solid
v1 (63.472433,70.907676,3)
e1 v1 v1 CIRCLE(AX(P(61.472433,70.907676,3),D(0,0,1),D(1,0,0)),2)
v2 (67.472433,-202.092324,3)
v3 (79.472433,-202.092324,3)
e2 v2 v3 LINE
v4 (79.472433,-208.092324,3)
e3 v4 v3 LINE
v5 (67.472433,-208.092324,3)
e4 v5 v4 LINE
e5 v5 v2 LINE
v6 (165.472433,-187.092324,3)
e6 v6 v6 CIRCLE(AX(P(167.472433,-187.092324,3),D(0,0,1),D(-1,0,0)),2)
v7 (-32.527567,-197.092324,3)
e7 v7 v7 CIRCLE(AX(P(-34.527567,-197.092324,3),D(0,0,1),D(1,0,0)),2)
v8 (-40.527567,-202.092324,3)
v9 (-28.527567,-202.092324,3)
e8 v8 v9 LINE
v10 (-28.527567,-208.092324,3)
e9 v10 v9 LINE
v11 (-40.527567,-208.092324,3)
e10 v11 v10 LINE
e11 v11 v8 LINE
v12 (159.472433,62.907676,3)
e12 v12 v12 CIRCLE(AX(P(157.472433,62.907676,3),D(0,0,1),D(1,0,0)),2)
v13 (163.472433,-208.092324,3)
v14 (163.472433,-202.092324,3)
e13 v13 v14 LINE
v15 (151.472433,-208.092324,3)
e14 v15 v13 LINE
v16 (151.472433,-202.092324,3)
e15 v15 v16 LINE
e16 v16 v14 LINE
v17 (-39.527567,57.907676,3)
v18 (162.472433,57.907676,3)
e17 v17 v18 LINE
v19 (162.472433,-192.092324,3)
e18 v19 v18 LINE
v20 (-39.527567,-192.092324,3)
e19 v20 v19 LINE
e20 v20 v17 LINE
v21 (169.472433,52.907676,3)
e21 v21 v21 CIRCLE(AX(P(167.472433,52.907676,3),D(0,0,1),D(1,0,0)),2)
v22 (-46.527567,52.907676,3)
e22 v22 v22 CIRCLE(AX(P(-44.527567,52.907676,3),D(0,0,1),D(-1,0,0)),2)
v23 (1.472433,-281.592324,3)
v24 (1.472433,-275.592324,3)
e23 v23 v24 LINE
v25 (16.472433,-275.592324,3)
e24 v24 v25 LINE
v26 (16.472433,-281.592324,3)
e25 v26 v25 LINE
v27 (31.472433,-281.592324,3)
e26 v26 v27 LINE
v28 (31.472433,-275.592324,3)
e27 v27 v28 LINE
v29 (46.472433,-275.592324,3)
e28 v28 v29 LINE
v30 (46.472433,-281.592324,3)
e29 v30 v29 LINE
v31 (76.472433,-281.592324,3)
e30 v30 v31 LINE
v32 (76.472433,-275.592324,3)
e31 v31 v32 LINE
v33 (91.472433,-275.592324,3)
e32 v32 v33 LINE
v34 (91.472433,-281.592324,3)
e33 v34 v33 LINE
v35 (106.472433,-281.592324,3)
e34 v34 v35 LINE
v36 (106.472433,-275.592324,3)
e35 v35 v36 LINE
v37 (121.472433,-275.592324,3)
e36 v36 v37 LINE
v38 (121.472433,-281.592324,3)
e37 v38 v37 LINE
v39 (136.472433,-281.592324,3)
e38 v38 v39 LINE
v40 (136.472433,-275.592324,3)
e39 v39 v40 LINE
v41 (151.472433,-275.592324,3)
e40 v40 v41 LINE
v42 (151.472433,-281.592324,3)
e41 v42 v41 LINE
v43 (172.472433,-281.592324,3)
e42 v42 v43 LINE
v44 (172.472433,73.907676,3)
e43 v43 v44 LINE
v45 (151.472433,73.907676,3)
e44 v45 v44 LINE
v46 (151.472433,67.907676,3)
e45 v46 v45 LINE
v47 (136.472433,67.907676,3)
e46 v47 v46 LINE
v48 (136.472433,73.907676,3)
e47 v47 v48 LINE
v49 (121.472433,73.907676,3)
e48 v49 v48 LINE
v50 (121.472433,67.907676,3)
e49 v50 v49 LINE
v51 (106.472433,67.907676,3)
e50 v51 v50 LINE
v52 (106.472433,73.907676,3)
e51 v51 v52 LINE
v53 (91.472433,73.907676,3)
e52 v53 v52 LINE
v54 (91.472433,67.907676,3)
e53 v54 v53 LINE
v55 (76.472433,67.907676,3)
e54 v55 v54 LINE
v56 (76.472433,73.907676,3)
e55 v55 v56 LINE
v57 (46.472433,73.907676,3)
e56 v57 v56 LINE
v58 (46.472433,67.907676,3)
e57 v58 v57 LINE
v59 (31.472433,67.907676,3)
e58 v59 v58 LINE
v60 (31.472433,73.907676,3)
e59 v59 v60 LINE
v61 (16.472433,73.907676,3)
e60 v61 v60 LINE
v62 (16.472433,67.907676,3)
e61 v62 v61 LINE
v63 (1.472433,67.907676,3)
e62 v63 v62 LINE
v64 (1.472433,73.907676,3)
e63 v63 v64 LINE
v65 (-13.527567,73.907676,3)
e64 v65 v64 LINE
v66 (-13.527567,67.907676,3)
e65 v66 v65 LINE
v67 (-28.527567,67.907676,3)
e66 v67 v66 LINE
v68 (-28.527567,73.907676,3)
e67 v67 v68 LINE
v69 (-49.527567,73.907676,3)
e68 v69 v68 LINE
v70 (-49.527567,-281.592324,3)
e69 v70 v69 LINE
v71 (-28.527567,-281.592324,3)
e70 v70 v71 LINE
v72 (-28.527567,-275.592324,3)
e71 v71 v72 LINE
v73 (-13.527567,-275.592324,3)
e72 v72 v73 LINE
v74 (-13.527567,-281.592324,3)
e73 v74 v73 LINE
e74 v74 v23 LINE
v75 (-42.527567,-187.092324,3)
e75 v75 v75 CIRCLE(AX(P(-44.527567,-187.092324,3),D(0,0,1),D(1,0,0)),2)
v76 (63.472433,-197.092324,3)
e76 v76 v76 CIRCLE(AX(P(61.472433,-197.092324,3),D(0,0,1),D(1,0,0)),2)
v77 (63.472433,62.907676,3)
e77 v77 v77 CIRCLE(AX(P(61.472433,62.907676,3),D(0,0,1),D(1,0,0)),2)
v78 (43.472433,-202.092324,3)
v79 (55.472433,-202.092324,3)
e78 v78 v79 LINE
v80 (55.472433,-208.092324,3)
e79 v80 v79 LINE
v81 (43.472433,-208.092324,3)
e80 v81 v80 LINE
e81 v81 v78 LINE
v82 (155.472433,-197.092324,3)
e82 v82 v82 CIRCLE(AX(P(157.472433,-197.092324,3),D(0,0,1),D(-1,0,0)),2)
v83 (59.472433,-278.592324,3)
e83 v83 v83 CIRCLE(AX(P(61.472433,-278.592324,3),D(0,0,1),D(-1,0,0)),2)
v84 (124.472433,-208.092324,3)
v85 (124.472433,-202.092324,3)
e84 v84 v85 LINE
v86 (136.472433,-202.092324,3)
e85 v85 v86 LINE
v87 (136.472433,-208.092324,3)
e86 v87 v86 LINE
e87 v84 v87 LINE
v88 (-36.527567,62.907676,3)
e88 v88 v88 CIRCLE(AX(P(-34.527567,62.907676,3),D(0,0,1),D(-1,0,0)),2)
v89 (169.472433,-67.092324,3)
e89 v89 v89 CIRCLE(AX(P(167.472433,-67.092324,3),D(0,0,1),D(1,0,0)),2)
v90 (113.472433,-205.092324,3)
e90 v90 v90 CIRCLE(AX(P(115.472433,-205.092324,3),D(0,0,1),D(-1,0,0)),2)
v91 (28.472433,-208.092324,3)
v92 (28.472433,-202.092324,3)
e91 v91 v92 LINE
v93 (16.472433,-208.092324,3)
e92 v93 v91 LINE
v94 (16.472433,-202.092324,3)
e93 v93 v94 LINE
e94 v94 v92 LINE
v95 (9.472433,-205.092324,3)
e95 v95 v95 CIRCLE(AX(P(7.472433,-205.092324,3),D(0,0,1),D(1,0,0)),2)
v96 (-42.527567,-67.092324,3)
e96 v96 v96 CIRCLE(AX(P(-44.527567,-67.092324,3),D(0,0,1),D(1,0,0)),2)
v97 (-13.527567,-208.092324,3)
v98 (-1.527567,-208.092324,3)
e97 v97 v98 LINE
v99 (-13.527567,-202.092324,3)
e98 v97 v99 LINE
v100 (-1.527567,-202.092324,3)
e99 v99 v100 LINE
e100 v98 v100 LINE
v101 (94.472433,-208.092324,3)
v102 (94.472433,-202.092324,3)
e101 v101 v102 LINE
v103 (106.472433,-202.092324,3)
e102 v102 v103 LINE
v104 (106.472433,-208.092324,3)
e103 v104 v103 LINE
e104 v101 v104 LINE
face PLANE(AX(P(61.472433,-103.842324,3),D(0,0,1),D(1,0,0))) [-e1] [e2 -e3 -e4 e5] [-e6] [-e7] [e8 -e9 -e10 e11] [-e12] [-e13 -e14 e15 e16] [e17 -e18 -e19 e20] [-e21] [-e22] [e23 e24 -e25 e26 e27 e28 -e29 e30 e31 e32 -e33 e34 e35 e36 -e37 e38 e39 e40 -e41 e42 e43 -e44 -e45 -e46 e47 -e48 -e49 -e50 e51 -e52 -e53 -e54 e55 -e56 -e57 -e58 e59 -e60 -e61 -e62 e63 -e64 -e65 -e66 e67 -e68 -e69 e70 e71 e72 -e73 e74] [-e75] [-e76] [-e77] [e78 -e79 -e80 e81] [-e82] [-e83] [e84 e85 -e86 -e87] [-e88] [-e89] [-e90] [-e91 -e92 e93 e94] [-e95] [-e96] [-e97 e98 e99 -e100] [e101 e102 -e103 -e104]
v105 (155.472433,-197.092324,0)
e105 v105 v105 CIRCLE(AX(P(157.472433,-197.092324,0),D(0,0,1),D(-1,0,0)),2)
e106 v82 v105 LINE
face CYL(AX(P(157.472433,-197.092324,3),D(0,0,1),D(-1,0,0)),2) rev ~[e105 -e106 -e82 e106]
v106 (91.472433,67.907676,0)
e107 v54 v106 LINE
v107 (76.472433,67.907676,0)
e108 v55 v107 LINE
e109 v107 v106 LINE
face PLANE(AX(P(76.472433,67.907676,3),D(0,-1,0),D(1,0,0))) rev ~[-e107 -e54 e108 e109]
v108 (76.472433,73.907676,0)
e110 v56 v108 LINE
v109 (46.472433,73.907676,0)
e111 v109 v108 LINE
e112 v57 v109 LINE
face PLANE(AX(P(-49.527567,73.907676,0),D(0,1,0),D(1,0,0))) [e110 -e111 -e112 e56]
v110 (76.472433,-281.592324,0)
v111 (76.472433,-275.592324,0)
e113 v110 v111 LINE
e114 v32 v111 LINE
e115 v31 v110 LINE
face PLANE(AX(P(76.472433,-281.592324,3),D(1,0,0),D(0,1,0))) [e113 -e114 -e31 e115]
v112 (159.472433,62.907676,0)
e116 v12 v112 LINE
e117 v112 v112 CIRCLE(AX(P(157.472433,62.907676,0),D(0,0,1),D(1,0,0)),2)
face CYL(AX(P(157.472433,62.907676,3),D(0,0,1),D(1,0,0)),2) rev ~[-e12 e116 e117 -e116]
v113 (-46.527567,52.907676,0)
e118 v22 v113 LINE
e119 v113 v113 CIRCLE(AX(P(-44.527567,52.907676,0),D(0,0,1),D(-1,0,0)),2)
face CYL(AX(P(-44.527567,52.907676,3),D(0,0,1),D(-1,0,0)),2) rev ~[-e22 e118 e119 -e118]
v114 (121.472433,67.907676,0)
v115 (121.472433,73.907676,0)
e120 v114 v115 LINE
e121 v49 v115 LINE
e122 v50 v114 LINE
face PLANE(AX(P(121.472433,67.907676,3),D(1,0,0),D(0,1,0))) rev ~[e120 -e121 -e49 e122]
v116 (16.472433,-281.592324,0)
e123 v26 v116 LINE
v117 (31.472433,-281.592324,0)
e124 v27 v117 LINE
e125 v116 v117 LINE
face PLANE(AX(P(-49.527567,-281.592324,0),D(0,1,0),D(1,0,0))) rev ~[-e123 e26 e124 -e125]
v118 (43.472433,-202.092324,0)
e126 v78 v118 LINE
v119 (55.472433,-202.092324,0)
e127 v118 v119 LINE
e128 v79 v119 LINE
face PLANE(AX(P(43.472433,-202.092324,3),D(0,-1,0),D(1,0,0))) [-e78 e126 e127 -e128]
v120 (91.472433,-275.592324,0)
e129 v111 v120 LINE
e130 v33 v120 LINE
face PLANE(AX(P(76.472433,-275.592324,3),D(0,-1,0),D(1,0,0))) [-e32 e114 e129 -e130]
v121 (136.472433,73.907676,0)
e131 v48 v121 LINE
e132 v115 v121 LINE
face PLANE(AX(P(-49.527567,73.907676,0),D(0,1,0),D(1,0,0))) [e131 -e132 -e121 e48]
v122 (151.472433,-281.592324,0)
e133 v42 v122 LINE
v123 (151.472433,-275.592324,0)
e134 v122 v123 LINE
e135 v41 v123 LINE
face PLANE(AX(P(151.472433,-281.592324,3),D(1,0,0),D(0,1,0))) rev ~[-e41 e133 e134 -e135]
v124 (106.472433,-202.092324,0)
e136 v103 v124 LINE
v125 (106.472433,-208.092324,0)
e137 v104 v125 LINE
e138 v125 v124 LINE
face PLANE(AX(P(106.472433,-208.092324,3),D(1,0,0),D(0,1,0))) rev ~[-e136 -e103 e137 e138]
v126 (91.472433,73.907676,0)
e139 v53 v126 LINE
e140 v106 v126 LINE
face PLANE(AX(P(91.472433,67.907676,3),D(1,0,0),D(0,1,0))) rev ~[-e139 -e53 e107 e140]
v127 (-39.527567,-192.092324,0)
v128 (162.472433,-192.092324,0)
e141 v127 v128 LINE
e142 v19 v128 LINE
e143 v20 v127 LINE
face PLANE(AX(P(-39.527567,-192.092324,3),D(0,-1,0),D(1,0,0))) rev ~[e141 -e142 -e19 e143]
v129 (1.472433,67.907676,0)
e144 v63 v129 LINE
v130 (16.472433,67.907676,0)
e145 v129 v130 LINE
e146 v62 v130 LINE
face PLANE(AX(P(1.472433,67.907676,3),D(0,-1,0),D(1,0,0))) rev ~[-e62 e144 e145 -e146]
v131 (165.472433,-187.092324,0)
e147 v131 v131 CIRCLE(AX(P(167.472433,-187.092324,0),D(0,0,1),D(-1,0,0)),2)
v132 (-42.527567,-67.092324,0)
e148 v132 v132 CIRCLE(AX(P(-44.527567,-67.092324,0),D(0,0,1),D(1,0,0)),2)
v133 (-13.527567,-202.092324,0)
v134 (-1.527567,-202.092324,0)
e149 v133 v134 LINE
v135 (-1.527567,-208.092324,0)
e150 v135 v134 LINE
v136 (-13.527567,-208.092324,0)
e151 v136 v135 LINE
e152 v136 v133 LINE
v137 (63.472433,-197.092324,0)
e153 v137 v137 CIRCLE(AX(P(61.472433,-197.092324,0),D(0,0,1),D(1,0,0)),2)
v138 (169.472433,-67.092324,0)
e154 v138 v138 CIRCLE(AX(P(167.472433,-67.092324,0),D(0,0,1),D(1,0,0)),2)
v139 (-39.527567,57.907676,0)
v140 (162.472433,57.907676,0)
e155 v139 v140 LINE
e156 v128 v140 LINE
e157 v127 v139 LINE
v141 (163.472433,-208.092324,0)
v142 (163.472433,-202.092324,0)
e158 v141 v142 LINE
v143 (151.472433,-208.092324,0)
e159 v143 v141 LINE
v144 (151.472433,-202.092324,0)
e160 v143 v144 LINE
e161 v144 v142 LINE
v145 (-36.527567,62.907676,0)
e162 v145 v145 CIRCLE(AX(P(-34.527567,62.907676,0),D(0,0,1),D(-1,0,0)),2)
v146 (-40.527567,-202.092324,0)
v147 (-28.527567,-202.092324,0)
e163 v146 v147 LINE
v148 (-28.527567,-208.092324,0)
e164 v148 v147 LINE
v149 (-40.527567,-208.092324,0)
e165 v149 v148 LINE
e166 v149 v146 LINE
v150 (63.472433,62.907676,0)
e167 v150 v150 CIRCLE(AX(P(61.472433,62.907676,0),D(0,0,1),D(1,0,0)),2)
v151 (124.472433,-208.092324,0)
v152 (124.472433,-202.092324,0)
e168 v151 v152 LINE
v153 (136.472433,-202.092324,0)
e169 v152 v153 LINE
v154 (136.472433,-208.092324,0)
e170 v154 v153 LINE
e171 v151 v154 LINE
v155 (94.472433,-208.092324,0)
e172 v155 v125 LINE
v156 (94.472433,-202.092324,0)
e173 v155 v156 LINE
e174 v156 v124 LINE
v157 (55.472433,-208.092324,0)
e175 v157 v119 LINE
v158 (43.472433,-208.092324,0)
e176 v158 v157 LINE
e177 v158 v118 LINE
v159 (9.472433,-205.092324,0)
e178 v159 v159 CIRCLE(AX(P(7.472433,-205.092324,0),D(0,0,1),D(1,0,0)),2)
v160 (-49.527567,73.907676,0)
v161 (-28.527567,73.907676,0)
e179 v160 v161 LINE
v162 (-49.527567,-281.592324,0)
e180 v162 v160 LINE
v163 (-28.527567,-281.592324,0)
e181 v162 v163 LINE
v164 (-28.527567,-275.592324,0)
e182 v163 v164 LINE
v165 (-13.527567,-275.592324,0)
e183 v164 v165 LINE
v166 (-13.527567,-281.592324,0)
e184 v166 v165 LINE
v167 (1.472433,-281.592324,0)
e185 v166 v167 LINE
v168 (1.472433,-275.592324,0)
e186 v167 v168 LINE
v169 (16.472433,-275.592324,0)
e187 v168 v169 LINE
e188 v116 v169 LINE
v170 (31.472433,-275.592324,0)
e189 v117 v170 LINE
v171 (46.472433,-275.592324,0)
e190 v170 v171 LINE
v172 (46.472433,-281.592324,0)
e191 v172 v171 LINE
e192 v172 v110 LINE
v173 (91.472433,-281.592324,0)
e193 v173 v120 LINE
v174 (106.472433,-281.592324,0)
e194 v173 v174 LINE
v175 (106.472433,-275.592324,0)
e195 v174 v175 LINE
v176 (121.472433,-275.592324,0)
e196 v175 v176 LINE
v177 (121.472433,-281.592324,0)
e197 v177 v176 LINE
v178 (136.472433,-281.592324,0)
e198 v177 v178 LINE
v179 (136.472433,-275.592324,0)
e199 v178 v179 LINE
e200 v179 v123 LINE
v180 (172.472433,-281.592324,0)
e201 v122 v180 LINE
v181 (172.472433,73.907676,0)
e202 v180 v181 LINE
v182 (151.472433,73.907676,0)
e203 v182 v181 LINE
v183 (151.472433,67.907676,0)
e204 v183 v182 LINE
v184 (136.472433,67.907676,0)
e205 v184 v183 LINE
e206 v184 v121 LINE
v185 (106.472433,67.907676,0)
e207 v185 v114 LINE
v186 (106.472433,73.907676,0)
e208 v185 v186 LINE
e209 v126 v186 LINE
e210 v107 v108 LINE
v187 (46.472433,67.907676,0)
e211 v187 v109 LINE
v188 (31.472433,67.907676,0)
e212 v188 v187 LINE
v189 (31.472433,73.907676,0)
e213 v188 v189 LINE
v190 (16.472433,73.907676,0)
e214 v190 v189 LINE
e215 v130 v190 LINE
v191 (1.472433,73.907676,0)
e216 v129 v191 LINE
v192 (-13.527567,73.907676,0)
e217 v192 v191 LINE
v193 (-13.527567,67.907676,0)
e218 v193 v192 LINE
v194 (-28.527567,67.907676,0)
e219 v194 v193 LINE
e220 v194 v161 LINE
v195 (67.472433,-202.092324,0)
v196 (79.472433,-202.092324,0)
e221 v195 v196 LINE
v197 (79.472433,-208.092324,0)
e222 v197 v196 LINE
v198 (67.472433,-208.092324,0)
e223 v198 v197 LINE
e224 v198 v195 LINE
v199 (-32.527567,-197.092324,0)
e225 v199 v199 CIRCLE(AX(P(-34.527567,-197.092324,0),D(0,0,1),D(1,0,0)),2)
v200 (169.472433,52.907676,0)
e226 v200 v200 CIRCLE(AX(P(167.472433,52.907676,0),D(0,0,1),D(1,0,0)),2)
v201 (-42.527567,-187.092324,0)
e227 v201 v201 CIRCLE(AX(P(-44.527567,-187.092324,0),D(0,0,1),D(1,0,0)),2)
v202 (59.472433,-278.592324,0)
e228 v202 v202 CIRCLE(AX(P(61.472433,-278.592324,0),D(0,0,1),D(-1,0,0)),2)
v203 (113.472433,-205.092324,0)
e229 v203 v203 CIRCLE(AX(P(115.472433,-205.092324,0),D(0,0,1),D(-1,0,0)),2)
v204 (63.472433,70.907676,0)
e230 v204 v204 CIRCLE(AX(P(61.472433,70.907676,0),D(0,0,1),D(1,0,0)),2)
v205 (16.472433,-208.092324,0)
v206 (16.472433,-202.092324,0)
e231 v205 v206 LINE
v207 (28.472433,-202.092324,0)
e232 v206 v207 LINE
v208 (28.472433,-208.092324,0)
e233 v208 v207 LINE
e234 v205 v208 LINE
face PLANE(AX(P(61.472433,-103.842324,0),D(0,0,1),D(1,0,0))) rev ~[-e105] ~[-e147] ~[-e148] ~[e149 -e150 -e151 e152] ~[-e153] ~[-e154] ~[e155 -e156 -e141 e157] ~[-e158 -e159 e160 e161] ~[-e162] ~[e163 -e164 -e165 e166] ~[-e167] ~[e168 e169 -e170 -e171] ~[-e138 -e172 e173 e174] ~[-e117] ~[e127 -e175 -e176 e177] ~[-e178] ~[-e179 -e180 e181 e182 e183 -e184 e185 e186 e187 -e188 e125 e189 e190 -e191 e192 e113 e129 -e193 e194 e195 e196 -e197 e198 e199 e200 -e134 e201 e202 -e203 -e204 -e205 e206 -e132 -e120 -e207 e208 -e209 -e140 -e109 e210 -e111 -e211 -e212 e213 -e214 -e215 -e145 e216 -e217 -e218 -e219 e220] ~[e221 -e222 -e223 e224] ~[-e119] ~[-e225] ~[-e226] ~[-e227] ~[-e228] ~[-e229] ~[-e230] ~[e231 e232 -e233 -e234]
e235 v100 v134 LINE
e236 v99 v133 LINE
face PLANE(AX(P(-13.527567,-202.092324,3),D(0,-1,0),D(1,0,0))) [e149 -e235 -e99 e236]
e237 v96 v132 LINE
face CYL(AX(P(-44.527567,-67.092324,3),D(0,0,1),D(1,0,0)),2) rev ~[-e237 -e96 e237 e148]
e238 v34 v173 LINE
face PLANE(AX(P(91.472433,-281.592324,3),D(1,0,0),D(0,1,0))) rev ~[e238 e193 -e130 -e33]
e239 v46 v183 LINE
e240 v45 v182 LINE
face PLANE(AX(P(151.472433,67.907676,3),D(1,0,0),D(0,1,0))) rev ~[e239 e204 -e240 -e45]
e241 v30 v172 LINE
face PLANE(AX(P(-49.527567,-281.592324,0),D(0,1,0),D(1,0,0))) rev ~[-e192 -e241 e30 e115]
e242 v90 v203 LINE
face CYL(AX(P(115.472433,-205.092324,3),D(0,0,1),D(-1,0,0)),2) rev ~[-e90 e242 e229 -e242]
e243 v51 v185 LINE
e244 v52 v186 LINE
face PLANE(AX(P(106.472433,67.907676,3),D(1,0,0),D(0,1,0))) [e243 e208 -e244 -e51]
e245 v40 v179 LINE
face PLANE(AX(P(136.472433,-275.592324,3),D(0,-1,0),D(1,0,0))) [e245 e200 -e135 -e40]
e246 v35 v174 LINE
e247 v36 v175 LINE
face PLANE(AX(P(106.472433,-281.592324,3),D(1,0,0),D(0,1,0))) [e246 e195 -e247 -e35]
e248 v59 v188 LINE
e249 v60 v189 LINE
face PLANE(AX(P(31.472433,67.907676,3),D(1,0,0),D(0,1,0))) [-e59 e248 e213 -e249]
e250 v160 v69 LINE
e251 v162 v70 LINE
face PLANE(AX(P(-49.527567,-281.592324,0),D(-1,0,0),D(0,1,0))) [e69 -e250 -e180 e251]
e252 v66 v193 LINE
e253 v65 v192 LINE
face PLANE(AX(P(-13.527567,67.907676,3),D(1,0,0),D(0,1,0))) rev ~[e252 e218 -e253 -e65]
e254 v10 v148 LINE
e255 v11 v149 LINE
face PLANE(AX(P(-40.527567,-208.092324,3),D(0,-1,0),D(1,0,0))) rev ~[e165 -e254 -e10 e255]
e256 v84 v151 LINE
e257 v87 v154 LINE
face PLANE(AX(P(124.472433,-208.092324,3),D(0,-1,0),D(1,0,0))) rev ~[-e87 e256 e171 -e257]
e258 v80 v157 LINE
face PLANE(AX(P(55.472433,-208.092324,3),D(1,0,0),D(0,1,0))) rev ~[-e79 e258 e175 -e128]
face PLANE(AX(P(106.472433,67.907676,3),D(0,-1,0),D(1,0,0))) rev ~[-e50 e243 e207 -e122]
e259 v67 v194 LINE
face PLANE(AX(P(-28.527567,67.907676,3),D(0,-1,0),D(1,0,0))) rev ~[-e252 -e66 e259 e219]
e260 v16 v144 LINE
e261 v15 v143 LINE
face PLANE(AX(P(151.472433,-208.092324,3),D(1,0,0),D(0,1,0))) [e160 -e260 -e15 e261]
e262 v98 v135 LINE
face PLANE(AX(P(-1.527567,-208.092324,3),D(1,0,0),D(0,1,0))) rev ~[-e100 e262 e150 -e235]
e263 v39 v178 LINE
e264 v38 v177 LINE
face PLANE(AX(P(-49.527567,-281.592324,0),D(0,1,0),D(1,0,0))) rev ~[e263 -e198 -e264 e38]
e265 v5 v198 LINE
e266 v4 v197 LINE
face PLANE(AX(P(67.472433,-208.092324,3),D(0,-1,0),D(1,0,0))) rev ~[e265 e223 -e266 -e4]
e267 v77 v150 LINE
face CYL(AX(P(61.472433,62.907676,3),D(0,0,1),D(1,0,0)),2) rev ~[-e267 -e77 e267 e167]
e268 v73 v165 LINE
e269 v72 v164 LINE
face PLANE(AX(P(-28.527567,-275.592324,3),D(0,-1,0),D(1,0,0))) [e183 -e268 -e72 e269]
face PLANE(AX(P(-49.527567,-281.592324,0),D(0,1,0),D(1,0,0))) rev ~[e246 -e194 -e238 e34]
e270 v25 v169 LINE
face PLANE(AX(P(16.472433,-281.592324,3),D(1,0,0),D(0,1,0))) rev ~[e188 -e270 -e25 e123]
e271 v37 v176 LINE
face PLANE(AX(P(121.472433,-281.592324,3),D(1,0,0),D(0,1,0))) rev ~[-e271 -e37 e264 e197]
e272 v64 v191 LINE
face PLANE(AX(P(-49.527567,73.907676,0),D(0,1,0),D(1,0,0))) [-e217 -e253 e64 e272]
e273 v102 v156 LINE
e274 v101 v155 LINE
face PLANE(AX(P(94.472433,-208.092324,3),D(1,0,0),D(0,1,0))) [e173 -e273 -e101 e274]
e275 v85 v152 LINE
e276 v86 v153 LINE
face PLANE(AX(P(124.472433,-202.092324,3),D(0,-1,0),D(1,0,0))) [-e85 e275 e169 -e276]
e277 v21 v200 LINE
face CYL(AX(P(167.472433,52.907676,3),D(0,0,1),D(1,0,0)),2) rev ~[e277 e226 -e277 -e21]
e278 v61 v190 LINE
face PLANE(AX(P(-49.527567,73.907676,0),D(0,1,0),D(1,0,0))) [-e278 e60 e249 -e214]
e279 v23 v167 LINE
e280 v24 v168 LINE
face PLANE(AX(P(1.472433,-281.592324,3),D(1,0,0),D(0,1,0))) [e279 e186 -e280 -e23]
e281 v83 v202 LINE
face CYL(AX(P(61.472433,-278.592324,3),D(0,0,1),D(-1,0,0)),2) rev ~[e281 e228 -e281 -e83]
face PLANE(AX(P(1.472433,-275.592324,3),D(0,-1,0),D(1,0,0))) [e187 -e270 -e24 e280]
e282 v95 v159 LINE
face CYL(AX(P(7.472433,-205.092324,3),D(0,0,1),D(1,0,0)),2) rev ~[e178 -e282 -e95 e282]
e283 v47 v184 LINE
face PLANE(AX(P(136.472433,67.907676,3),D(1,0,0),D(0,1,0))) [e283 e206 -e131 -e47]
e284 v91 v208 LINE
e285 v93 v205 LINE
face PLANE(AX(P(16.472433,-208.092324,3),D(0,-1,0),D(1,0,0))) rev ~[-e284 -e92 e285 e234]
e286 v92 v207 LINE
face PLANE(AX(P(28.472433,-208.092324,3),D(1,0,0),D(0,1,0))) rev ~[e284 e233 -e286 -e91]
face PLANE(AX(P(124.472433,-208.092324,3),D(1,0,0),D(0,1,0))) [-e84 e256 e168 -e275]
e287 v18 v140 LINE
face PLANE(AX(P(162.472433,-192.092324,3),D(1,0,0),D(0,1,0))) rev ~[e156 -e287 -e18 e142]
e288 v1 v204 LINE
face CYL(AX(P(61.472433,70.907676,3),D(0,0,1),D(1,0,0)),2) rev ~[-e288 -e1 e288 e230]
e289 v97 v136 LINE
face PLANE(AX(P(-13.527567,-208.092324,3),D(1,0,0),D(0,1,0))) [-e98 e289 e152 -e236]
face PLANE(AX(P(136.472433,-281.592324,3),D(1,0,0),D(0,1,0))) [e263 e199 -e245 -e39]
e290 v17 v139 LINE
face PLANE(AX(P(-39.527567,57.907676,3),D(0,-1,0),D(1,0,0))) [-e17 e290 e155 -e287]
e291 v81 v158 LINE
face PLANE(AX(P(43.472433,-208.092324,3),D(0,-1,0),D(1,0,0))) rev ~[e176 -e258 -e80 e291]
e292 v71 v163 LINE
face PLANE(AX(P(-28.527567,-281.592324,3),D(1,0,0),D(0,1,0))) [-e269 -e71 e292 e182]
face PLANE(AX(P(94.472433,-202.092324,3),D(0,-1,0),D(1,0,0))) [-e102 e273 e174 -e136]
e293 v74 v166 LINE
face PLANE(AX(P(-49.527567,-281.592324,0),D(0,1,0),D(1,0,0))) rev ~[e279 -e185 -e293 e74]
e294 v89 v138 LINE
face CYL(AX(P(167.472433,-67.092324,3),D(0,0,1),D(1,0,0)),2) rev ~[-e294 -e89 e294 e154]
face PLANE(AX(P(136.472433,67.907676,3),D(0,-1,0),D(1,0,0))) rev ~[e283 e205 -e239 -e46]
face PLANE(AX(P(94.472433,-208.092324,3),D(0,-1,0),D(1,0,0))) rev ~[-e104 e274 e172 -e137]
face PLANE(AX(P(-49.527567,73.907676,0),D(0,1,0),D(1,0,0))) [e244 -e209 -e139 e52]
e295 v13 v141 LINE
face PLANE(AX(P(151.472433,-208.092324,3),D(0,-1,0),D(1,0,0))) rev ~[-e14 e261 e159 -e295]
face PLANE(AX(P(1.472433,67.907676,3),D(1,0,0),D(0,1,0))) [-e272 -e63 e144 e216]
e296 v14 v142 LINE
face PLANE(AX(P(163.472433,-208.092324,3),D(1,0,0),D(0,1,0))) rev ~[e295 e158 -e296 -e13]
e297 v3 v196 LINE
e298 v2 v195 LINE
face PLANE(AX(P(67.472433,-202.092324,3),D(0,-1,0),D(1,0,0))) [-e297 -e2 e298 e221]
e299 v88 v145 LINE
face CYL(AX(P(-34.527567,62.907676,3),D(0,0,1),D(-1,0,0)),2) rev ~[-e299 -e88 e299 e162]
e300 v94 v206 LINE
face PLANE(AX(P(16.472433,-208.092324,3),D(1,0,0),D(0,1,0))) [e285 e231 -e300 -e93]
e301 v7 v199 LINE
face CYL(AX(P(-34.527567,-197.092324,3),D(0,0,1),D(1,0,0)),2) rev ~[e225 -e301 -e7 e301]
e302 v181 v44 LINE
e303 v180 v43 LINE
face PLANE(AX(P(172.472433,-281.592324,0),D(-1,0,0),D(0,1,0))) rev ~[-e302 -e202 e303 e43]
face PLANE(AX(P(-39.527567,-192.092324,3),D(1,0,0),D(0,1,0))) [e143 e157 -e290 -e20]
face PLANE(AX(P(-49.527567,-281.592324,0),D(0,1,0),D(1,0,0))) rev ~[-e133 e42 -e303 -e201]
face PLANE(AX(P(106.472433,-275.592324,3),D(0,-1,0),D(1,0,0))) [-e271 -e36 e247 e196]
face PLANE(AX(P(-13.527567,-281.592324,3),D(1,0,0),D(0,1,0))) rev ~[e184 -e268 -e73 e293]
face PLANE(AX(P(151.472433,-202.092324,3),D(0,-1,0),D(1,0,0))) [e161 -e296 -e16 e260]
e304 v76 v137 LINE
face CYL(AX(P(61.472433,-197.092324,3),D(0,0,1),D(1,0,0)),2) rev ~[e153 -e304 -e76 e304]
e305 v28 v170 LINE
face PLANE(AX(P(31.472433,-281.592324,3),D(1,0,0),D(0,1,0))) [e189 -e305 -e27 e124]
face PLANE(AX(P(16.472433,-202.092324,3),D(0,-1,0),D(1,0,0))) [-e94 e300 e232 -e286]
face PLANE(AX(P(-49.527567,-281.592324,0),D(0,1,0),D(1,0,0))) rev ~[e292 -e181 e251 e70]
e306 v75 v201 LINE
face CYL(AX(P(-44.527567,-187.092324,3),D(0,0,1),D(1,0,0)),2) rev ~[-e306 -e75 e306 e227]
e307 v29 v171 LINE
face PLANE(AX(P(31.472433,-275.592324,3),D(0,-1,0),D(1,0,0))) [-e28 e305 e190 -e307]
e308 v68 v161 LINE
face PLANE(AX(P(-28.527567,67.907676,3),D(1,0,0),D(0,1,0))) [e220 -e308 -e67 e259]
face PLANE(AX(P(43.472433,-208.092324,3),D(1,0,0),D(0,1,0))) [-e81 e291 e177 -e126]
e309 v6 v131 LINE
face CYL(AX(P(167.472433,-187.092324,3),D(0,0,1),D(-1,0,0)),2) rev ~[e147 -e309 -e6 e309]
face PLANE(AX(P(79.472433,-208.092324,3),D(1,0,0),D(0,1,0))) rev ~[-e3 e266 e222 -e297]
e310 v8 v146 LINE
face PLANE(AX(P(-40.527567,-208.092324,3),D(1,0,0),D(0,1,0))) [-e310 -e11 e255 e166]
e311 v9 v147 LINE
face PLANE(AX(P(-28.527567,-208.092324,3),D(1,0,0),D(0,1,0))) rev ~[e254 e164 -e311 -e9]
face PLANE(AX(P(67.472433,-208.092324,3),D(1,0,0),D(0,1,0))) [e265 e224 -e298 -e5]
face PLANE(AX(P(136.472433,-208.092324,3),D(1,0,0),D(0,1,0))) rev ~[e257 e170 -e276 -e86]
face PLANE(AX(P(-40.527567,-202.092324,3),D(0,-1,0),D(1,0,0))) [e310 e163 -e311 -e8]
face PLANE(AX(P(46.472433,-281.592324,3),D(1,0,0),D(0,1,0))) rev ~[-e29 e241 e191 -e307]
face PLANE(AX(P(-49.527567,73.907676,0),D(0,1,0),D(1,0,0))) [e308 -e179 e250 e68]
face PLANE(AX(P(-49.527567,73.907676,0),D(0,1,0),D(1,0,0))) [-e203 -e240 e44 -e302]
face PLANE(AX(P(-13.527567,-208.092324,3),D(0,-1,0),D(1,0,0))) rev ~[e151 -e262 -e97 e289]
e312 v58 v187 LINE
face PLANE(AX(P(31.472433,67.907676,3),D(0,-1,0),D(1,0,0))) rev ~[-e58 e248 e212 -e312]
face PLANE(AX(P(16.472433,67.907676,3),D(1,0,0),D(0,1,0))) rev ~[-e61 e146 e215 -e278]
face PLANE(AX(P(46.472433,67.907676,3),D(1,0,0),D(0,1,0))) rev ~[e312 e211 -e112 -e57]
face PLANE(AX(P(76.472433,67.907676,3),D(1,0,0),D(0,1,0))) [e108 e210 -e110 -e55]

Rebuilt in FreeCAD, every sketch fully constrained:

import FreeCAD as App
import Part
import Sketcher
Q = App.Units.Quantity

doc = App.newDocument("Part")
body = doc.addObject("PartDesign::Body", "Body")

sketch1 = body.newObject("Sketcher::SketchObject", "Sketch")
sketch1.AttachmentSupport = (doc.getObject("XY_Plane"), [""])
sketch1.MapMode = "FlatFace"
sketch1.addGeometry([
    Part.LineSegment(App.Vector(-50, 74, 0), App.Vector(-50, -282, 0)),
    Part.LineSegment(App.Vector(-50, -282, 0), App.Vector(172, -282, 0)),
    Part.LineSegment(App.Vector(172, -282, 0), App.Vector(172, 74, 0)),
    Part.LineSegment(App.Vector(172, 74, 0), App.Vector(-50, 74, 0)),
], False)
sketch1.addConstraint([
    Sketcher.Constraint("Coincident", 0, 2, 1, 1),
    Sketcher.Constraint("Coincident", 1, 2, 2, 1),
    Sketcher.Constraint("Coincident", 2, 2, 3, 1),
    Sketcher.Constraint("Coincident", 3, 2, 0, 1),
    Sketcher.Constraint("Vertical", 0),
    Sketcher.Constraint("Horizontal", 1),
    Sketcher.Constraint("Vertical", 2),
    Sketcher.Constraint("Horizontal", 3),
    Sketcher.Constraint("DistanceX", 1, 1, 1, 2, Q("222 mm")),
    Sketcher.Constraint("DistanceY", 0, 2, 0, 1, Q("355.5 mm")),
    Sketcher.Constraint("DistanceX", 0, 2, -1, 1, Q("49.527567 mm")),
    Sketcher.Constraint("DistanceY", 0, 2, -1, 1, Q("281.592324 mm")),
])
pad1 = body.newObject("PartDesign::Pad", "Pad")
pad1.Profile = sketch1
pad1.Length = 3

sketch2 = body.newObject("Sketcher::SketchObject", "Sketch001")
sketch2.AttachmentSupport = (doc.getObject("XY_Plane"), [""])
sketch2.MapMode = "FlatFace"
sketch2.AttachmentOffset = App.Placement(App.Vector(0, 0, 3), App.Rotation())
sketch2.addGeometry([
    Part.Circle(App.Vector(61.5, 70.9, 0), App.Vector(0, 0, 1), 2),
    Part.Circle(App.Vector(61.5, -278.6, 0), App.Vector(0, 0, 1), 2),
    Part.LineSegment(App.Vector(1.5, 73.9, 0), App.Vector(1.5, 67.9, 0)),
    Part.LineSegment(App.Vector(1.5, 67.9, 0), App.Vector(16.5, 67.9, 0)),
    Part.LineSegment(App.Vector(16.5, 67.9, 0), App.Vector(16.5, 73.9, 0)),
    Part.LineSegment(App.Vector(16.5, 73.9, 0), App.Vector(1.5, 73.9, 0)),
    Part.LineSegment(App.Vector(76.5, 73.9, 0), App.Vector(76.5, 67.9, 0)),
    Part.LineSegment(App.Vector(76.5, 67.9, 0), App.Vector(91.5, 67.9, 0)),
    Part.LineSegment(App.Vector(91.5, 67.9, 0), App.Vector(91.5, 73.9, 0)),
    Part.LineSegment(App.Vector(91.5, 73.9, 0), App.Vector(76.5, 73.9, 0)),
    Part.LineSegment(App.Vector(136.5, 73.9, 0), App.Vector(136.5, 67.9, 0)),
    Part.LineSegment(App.Vector(136.5, 67.9, 0), App.Vector(151.5, 67.9, 0)),
    Part.LineSegment(App.Vector(151.5, 67.9, 0), App.Vector(151.5, 73.9, 0)),
    Part.LineSegment(App.Vector(151.5, 73.9, 0), App.Vector(136.5, 73.9, 0)),
    Part.LineSegment(App.Vector(106.5, 73.9, 0), App.Vector(106.5, 67.9, 0)),
    Part.LineSegment(App.Vector(106.5, 67.9, 0), App.Vector(121.5, 67.9, 0)),
    Part.LineSegment(App.Vector(121.5, 67.9, 0), App.Vector(121.5, 73.9, 0)),
    Part.LineSegment(App.Vector(121.5, 73.9, 0), App.Vector(106.5, 73.9, 0)),
    Part.LineSegment(App.Vector(-28.5, 73.9, 0), App.Vector(-28.5, 67.9, 0)),
    Part.LineSegment(App.Vector(-28.5, 67.9, 0), App.Vector(-13.5, 67.9, 0)),
    Part.LineSegment(App.Vector(-13.5, 67.9, 0), App.Vector(-13.5, 73.9, 0)),
    Part.LineSegment(App.Vector(-13.5, 73.9, 0), App.Vector(-28.5, 73.9, 0)),
    Part.LineSegment(App.Vector(31.5, 73.9, 0), App.Vector(31.5, 67.9, 0)),
    Part.LineSegment(App.Vector(31.5, 67.9, 0), App.Vector(46.5, 67.9, 0)),
    Part.LineSegment(App.Vector(46.5, 67.9, 0), App.Vector(46.5, 73.9, 0)),
    Part.LineSegment(App.Vector(46.5, 73.9, 0), App.Vector(31.5, 73.9, 0)),
    Part.LineSegment(App.Vector(31.5, -275.6, 0), App.Vector(31.5, -281.6, 0)),
    Part.LineSegment(App.Vector(31.5, -281.6, 0), App.Vector(46.5, -281.6, 0)),
    Part.LineSegment(App.Vector(46.5, -281.6, 0), App.Vector(46.5, -275.6, 0)),
    Part.LineSegment(App.Vector(46.5, -275.6, 0), App.Vector(31.5, -275.6, 0)),
    Part.LineSegment(App.Vector(-28.5, -275.6, 0), App.Vector(-28.5, -281.6, 0)),
    Part.LineSegment(App.Vector(-28.5, -281.6, 0), App.Vector(-13.5, -281.6, 0)),
    Part.LineSegment(App.Vector(-13.5, -281.6, 0), App.Vector(-13.5, -275.6, 0)),
    Part.LineSegment(App.Vector(-13.5, -275.6, 0), App.Vector(-28.5, -275.6, 0)),
    Part.LineSegment(App.Vector(1.5, -275.6, 0), App.Vector(1.5, -281.6, 0)),
    Part.LineSegment(App.Vector(1.5, -281.6, 0), App.Vector(16.5, -281.6, 0)),
    Part.LineSegment(App.Vector(16.5, -281.6, 0), App.Vector(16.5, -275.6, 0)),
    Part.LineSegment(App.Vector(16.5, -275.6, 0), App.Vector(1.5, -275.6, 0)),
    Part.LineSegment(App.Vector(106.5, -275.6, 0), App.Vector(106.5, -281.6, 0)),
    Part.LineSegment(App.Vector(106.5, -281.6, 0), App.Vector(121.5, -281.6, 0)),
    Part.LineSegment(App.Vector(121.5, -281.6, 0), App.Vector(121.5, -275.6, 0)),
    Part.LineSegment(App.Vector(121.5, -275.6, 0), App.Vector(106.5, -275.6, 0)),
    Part.LineSegment(App.Vector(136.5, -275.6, 0), App.Vector(136.5, -281.6, 0)),
    Part.LineSegment(App.Vector(136.5, -281.6, 0), App.Vector(151.5, -281.6, 0)),
    Part.LineSegment(App.Vector(151.5, -281.6, 0), App.Vector(151.5, -275.6, 0)),
    Part.LineSegment(App.Vector(151.5, -275.6, 0), App.Vector(136.5, -275.6, 0)),
    Part.LineSegment(App.Vector(76.5, -275.6, 0), App.Vector(76.5, -281.6, 0)),
    Part.LineSegment(App.Vector(76.5, -281.6, 0), App.Vector(91.5, -281.6, 0)),
    Part.LineSegment(App.Vector(91.5, -281.6, 0), App.Vector(91.5, -275.6, 0)),
    Part.LineSegment(App.Vector(91.5, -275.6, 0), App.Vector(76.5, -275.6, 0)),
], False)
sketch2.addConstraint([
    Sketcher.Constraint("Coincident", 2, 2, 3, 1),
    Sketcher.Constraint("Coincident", 3, 2, 4, 1),
    Sketcher.Constraint("Coincident", 4, 2, 5, 1),
    Sketcher.Constraint("Coincident", 5, 2, 2, 1),
    Sketcher.Constraint("Coincident", 6, 2, 7, 1),
    Sketcher.Constraint("Coincident", 7, 2, 8, 1),
    Sketcher.Constraint("Coincident", 8, 2, 9, 1),
    Sketcher.Constraint("Coincident", 9, 2, 6, 1),
    Sketcher.Constraint("Coincident", 10, 2, 11, 1),
    Sketcher.Constraint("Coincident", 11, 2, 12, 1),
    Sketcher.Constraint("Coincident", 12, 2, 13, 1),
    Sketcher.Constraint("Coincident", 13, 2, 10, 1),
    Sketcher.Constraint("Coincident", 14, 2, 15, 1),
    Sketcher.Constraint("Coincident", 15, 2, 16, 1),
    Sketcher.Constraint("Coincident", 16, 2, 17, 1),
    Sketcher.Constraint("Coincident", 17, 2, 14, 1),
    Sketcher.Constraint("Coincident", 18, 2, 19, 1),
    Sketcher.Constraint("Coincident", 19, 2, 20, 1),
    Sketcher.Constraint("Coincident", 20, 2, 21, 1),
    Sketcher.Constraint("Coincident", 21, 2, 18, 1),
    Sketcher.Constraint("Coincident", 22, 2, 23, 1),
    Sketcher.Constraint("Coincident", 23, 2, 24, 1),
    Sketcher.Constraint("Coincident", 24, 2, 25, 1),
    Sketcher.Constraint("Coincident", 25, 2, 22, 1),
    Sketcher.Constraint("Coincident", 26, 2, 27, 1),
    Sketcher.Constraint("Coincident", 27, 2, 28, 1),
    Sketcher.Constraint("Coincident", 28, 2, 29, 1),
    Sketcher.Constraint("Coincident", 29, 2, 26, 1),
    Sketcher.Constraint("Coincident", 30, 2, 31, 1),
    Sketcher.Constraint("Coincident", 31, 2, 32, 1),
    Sketcher.Constraint("Coincident", 32, 2, 33, 1),
    Sketcher.Constraint("Coincident", 33, 2, 30, 1),
    Sketcher.Constraint("Coincident", 34, 2, 35, 1),
    Sketcher.Constraint("Coincident", 35, 2, 36, 1),
    Sketcher.Constraint("Coincident", 36, 2, 37, 1),
    Sketcher.Constraint("Coincident", 37, 2, 34, 1),
    Sketcher.Constraint("Coincident", 38, 2, 39, 1),
    Sketcher.Constraint("Coincident", 39, 2, 40, 1),
    Sketcher.Constraint("Coincident", 40, 2, 41, 1),
    Sketcher.Constraint("Coincident", 41, 2, 38, 1),
    Sketcher.Constraint("Coincident", 42, 2, 43, 1),
    Sketcher.Constraint("Coincident", 43, 2, 44, 1),
    Sketcher.Constraint("Coincident", 44, 2, 45, 1),
    Sketcher.Constraint("Coincident", 45, 2, 42, 1),
    Sketcher.Constraint("Coincident", 46, 2, 47, 1),
    Sketcher.Constraint("Coincident", 47, 2, 48, 1),
    Sketcher.Constraint("Coincident", 48, 2, 49, 1),
    Sketcher.Constraint("Coincident", 49, 2, 46, 1),
    Sketcher.Constraint("Vertical", 2),
    Sketcher.Constraint("Horizontal", 3),
    Sketcher.Constraint("Vertical", 4),
    Sketcher.Constraint("Horizontal", 5),
    Sketcher.Constraint("Vertical", 6),
    Sketcher.Constraint("Horizontal", 7),
    Sketcher.Constraint("Vertical", 8),
    Sketcher.Constraint("Horizontal", 9),
    Sketcher.Constraint("Vertical", 10),
    Sketcher.Constraint("Horizontal", 11),
    Sketcher.Constraint("Vertical", 12),
    Sketcher.Constraint("Horizontal", 13),
    Sketcher.Constraint("Vertical", 14),
    Sketcher.Constraint("Horizontal", 15),
    Sketcher.Constraint("Vertical", 16),
    Sketcher.Constraint("Horizontal", 17),
    Sketcher.Constraint("Vertical", 18),
    Sketcher.Constraint("Horizontal", 19),
    Sketcher.Constraint("Vertical", 20),
    Sketcher.Constraint("Horizontal", 21),
    Sketcher.Constraint("Vertical", 22),
    Sketcher.Constraint("Horizontal", 23),
    Sketcher.Constraint("Vertical", 24),
    Sketcher.Constraint("Horizontal", 25),
    Sketcher.Constraint("Vertical", 26),
    Sketcher.Constraint("Horizontal", 27),
    Sketcher.Constraint("Vertical", 28),
    Sketcher.Constraint("Horizontal", 29),
    Sketcher.Constraint("Vertical", 30),
    Sketcher.Constraint("Horizontal", 31),
    Sketcher.Constraint("Vertical", 32),
    Sketcher.Constraint("Horizontal", 33),
    Sketcher.Constraint("Vertical", 34),
    Sketcher.Constraint("Horizontal", 35),
    Sketcher.Constraint("Vertical", 36),
    Sketcher.Constraint("Horizontal", 37),
    Sketcher.Constraint("Vertical", 38),
    Sketcher.Constraint("Horizontal", 39),
    Sketcher.Constraint("Vertical", 40),
    Sketcher.Constraint("Horizontal", 41),
    Sketcher.Constraint("Vertical", 42),
    Sketcher.Constraint("Horizontal", 43),
    Sketcher.Constraint("Vertical", 44),
    Sketcher.Constraint("Horizontal", 45),
    Sketcher.Constraint("Vertical", 46),
    Sketcher.Constraint("Horizontal", 47),
    Sketcher.Constraint("Vertical", 48),
    Sketcher.Constraint("Horizontal", 49),
    Sketcher.Constraint("Equal", 0, 1),
    Sketcher.Constraint("Horizontal", 3, 2, 6, 2),
    Sketcher.Constraint("Horizontal", 5, 2, 8, 2),
    Sketcher.Constraint("Horizontal", 7, 2, 10, 2),
    Sketcher.Constraint("Horizontal", 9, 2, 12, 2),
    Sketcher.Constraint("Horizontal", 11, 2, 14, 2),
    Sketcher.Constraint("Horizontal", 13, 2, 16, 2),
    Sketcher.Constraint("Horizontal", 15, 2, 18, 2),
    Sketcher.Constraint("Horizontal", 17, 2, 20, 2),
    Sketcher.Constraint("Horizontal", 19, 2, 22, 2),
    Sketcher.Constraint("Horizontal", 21, 2, 24, 2),
    Sketcher.Constraint("Horizontal", 27, 2, 30, 2),
    Sketcher.Constraint("Horizontal", 29, 2, 32, 2),
    Sketcher.Constraint("Horizontal", 31, 2, 34, 2),
    Sketcher.Constraint("Horizontal", 33, 2, 36, 2),
    Sketcher.Constraint("Horizontal", 35, 2, 38, 2),
    Sketcher.Constraint("Horizontal", 37, 2, 40, 2),
    Sketcher.Constraint("Horizontal", 39, 2, 42, 2),
    Sketcher.Constraint("Horizontal", 41, 2, 44, 2),
    Sketcher.Constraint("Horizontal", 43, 2, 46, 2),
    Sketcher.Constraint("Horizontal", 45, 2, 48, 2),
    Sketcher.Constraint("Vertical", 0, 3, 1, 3),
    Sketcher.Constraint("Vertical", 25, 2, 26, 2),
    Sketcher.Constraint("Vertical", 24, 2, 27, 2),
    Sketcher.Constraint("Vertical", 21, 2, 30, 2),
    Sketcher.Constraint("Vertical", 20, 2, 31, 2),
    Sketcher.Constraint("Vertical", 5, 2, 34, 2),
    Sketcher.Constraint("Vertical", 4, 2, 35, 2),
    Sketcher.Constraint("Vertical", 17, 2, 38, 2),
    Sketcher.Constraint("Vertical", 16, 2, 39, 2),
    Sketcher.Constraint("Vertical", 13, 2, 42, 2),
    Sketcher.Constraint("Vertical", 12, 2, 43, 2),
    Sketcher.Constraint("Vertical", 9, 2, 46, 2),
    Sketcher.Constraint("Vertical", 8, 2, 47, 2),
    Sketcher.Constraint("Equal", 5, 7),
    Sketcher.Constraint("Equal", 9, 11),
    Sketcher.Constraint("Equal", 13, 15),
    Sketcher.Constraint("Equal", 17, 19),
    Sketcher.Constraint("Equal", 21, 23),
    Sketcher.Constraint("Equal", 24, 26),
    Sketcher.Constraint("Diameter", 0, Q("4 mm")),
    Sketcher.Constraint("DistanceX", 3, 1, 3, 2, Q("15 mm")),
    Sketcher.Constraint("DistanceY", 2, 2, 2, 1, Q("6 mm")),
    Sketcher.Constraint("DistanceX", 2, 2, 0, 3, Q("60 mm")),
    Sketcher.Constraint("DistanceY", 2, 2, 0, 3, Q("3 mm")),
    Sketcher.Constraint("DistanceX", 0, 3, 6, 2, Q("15 mm")),
    Sketcher.Constraint("DistanceX", 7, 2, 10, 2, Q("45 mm")),
    Sketcher.Constraint("DistanceX", 7, 2, 14, 2, Q("15 mm")),
    Sketcher.Constraint("DistanceX", 18, 2, 2, 2, Q("30 mm")),
    Sketcher.Constraint("DistanceX", 3, 2, 22, 2, Q("15 mm")),
    Sketcher.Constraint("DistanceY", 26, 2, 1, 3, Q("3 mm")),
    Sketcher.Constraint("DistanceY", 1, 3, 0, 3, Q("349.5 mm")),
    Sketcher.Constraint("DistanceX", -1, 1, 0, 3, Q("61.472433 mm")),
    Sketcher.Constraint("DistanceY", -1, 1, 0, 3, Q("70.907676 mm")),
])
pocket1 = body.newObject("PartDesign::Pocket", "Pocket")
pocket1.Profile = sketch2
pocket1.Length = 3

sketch3 = body.newObject("Sketcher::SketchObject", "Sketch002")
sketch3.AttachmentSupport = (doc.getObject("XY_Plane"), [""])
sketch3.MapMode = "FlatFace"
sketch3.AttachmentOffset = App.Placement(App.Vector(0, 0, 3), App.Rotation())
sketch3.addGeometry([
    Part.Circle(App.Vector(7.5, -205.1, 0), App.Vector(0, 0, 1), 2),
    Part.Circle(App.Vector(115.5, -205.1, 0), App.Vector(0, 0, 1), 2),
    Part.LineSegment(App.Vector(43.5, -202.1, 0), App.Vector(43.5, -208.1, 0)),
    Part.LineSegment(App.Vector(43.5, -208.1, 0), App.Vector(55.5, -208.1, 0)),
    Part.LineSegment(App.Vector(55.5, -208.1, 0), App.Vector(55.5, -202.1, 0)),
    Part.LineSegment(App.Vector(55.5, -202.1, 0), App.Vector(43.5, -202.1, 0)),
    Part.LineSegment(App.Vector(16.5, -202.1, 0), App.Vector(16.5, -208.1, 0)),
    Part.LineSegment(App.Vector(16.5, -208.1, 0), App.Vector(28.5, -208.1, 0)),
    Part.LineSegment(App.Vector(28.5, -208.1, 0), App.Vector(28.5, -202.1, 0)),
    Part.LineSegment(App.Vector(28.5, -202.1, 0), App.Vector(16.5, -202.1, 0)),
    Part.LineSegment(App.Vector(-13.5, -202.1, 0), App.Vector(-13.5, -208.1, 0)),
    Part.LineSegment(App.Vector(-13.5, -208.1, 0), App.Vector(-1.5, -208.1, 0)),
    Part.LineSegment(App.Vector(-1.5, -208.1, 0), App.Vector(-1.5, -202.1, 0)),
    Part.LineSegment(App.Vector(-1.5, -202.1, 0), App.Vector(-13.5, -202.1, 0)),
    Part.LineSegment(App.Vector(-40.5, -202.1, 0), App.Vector(-40.5, -208.1, 0)),
    Part.LineSegment(App.Vector(-40.5, -208.1, 0), App.Vector(-28.5, -208.1, 0)),
    Part.LineSegment(App.Vector(-28.5, -208.1, 0), App.Vector(-28.5, -202.1, 0)),
    Part.LineSegment(App.Vector(-28.5, -202.1, 0), App.Vector(-40.5, -202.1, 0)),
    Part.LineSegment(App.Vector(151.5, -202.1, 0), App.Vector(151.5, -208.1, 0)),
    Part.LineSegment(App.Vector(151.5, -208.1, 0), App.Vector(163.5, -208.1, 0)),
    Part.LineSegment(App.Vector(163.5, -208.1, 0), App.Vector(163.5, -202.1, 0)),
    Part.LineSegment(App.Vector(163.5, -202.1, 0), App.Vector(151.5, -202.1, 0)),
    Part.LineSegment(App.Vector(124.5, -202.1, 0), App.Vector(124.5, -208.1, 0)),
    Part.LineSegment(App.Vector(124.5, -208.1, 0), App.Vector(136.5, -208.1, 0)),
    Part.LineSegment(App.Vector(136.5, -208.1, 0), App.Vector(136.5, -202.1, 0)),
    Part.LineSegment(App.Vector(136.5, -202.1, 0), App.Vector(124.5, -202.1, 0)),
    Part.LineSegment(App.Vector(94.5, -202.1, 0), App.Vector(94.5, -208.1, 0)),
    Part.LineSegment(App.Vector(94.5, -208.1, 0), App.Vector(106.5, -208.1, 0)),
    Part.LineSegment(App.Vector(106.5, -208.1, 0), App.Vector(106.5, -202.1, 0)),
    Part.LineSegment(App.Vector(106.5, -202.1, 0), App.Vector(94.5, -202.1, 0)),
    Part.LineSegment(App.Vector(67.5, -202.1, 0), App.Vector(67.5, -208.1, 0)),
    Part.LineSegment(App.Vector(67.5, -208.1, 0), App.Vector(79.5, -208.1, 0)),
    Part.LineSegment(App.Vector(79.5, -208.1, 0), App.Vector(79.5, -202.1, 0)),
    Part.LineSegment(App.Vector(79.5, -202.1, 0), App.Vector(67.5, -202.1, 0)),
], False)
sketch3.addConstraint([
    Sketcher.Constraint("Coincident", 2, 2, 3, 1),
    Sketcher.Constraint("Coincident", 3, 2, 4, 1),
    Sketcher.Constraint("Coincident", 4, 2, 5, 1),
    Sketcher.Constraint("Coincident", 5, 2, 2, 1),
    Sketcher.Constraint("Coincident", 6, 2, 7, 1),
    Sketcher.Constraint("Coincident", 7, 2, 8, 1),
    Sketcher.Constraint("Coincident", 8, 2, 9, 1),
    Sketcher.Constraint("Coincident", 9, 2, 6, 1),
    Sketcher.Constraint("Coincident", 10, 2, 11, 1),
    Sketcher.Constraint("Coincident", 11, 2, 12, 1),
    Sketcher.Constraint("Coincident", 12, 2, 13, 1),
    Sketcher.Constraint("Coincident", 13, 2, 10, 1),
    Sketcher.Constraint("Coincident", 14, 2, 15, 1),
    Sketcher.Constraint("Coincident", 15, 2, 16, 1),
    Sketcher.Constraint("Coincident", 16, 2, 17, 1),
    Sketcher.Constraint("Coincident", 17, 2, 14, 1),
    Sketcher.Constraint("Coincident", 18, 2, 19, 1),
    Sketcher.Constraint("Coincident", 19, 2, 20, 1),
    Sketcher.Constraint("Coincident", 20, 2, 21, 1),
    Sketcher.Constraint("Coincident", 21, 2, 18, 1),
    Sketcher.Constraint("Coincident", 22, 2, 23, 1),
    Sketcher.Constraint("Coincident", 23, 2, 24, 1),
    Sketcher.Constraint("Coincident", 24, 2, 25, 1),
    Sketcher.Constraint("Coincident", 25, 2, 22, 1),
    Sketcher.Constraint("Coincident", 26, 2, 27, 1),
    Sketcher.Constraint("Coincident", 27, 2, 28, 1),
    Sketcher.Constraint("Coincident", 28, 2, 29, 1),
    Sketcher.Constraint("Coincident", 29, 2, 26, 1),
    Sketcher.Constraint("Coincident", 30, 2, 31, 1),
    Sketcher.Constraint("Coincident", 31, 2, 32, 1),
    Sketcher.Constraint("Coincident", 32, 2, 33, 1),
    Sketcher.Constraint("Coincident", 33, 2, 30, 1),
    Sketcher.Constraint("Vertical", 2),
    Sketcher.Constraint("Horizontal", 3),
    Sketcher.Constraint("Vertical", 4),
    Sketcher.Constraint("Horizontal", 5),
    Sketcher.Constraint("Vertical", 6),
    Sketcher.Constraint("Horizontal", 7),
    Sketcher.Constraint("Vertical", 8),
    Sketcher.Constraint("Horizontal", 9),
    Sketcher.Constraint("Vertical", 10),
    Sketcher.Constraint("Horizontal", 11),
    Sketcher.Constraint("Vertical", 12),
    Sketcher.Constraint("Horizontal", 13),
    Sketcher.Constraint("Vertical", 14),
    Sketcher.Constraint("Horizontal", 15),
    Sketcher.Constraint("Vertical", 16),
    Sketcher.Constraint("Horizontal", 17),
    Sketcher.Constraint("Vertical", 18),
    Sketcher.Constraint("Horizontal", 19),
    Sketcher.Constraint("Vertical", 20),
    Sketcher.Constraint("Horizontal", 21),
    Sketcher.Constraint("Vertical", 22),
    Sketcher.Constraint("Horizontal", 23),
    Sketcher.Constraint("Vertical", 24),
    Sketcher.Constraint("Horizontal", 25),
    Sketcher.Constraint("Vertical", 26),
    Sketcher.Constraint("Horizontal", 27),
    Sketcher.Constraint("Vertical", 28),
    Sketcher.Constraint("Horizontal", 29),
    Sketcher.Constraint("Vertical", 30),
    Sketcher.Constraint("Horizontal", 31),
    Sketcher.Constraint("Vertical", 32),
    Sketcher.Constraint("Horizontal", 33),
    Sketcher.Constraint("Equal", 0, 1),
    Sketcher.Constraint("Horizontal", 0, 3, 1, 3),
    Sketcher.Constraint("Horizontal", 3, 2, 6, 2),
    Sketcher.Constraint("Horizontal", 5, 2, 8, 2),
    Sketcher.Constraint("Horizontal", 7, 2, 10, 2),
    Sketcher.Constraint("Horizontal", 9, 2, 12, 2),
    Sketcher.Constraint("Horizontal", 11, 2, 14, 2),
    Sketcher.Constraint("Horizontal", 13, 2, 16, 2),
    Sketcher.Constraint("Horizontal", 15, 2, 18, 2),
    Sketcher.Constraint("Horizontal", 17, 2, 20, 2),
    Sketcher.Constraint("Horizontal", 19, 2, 22, 2),
    Sketcher.Constraint("Horizontal", 21, 2, 24, 2),
    Sketcher.Constraint("Horizontal", 23, 2, 26, 2),
    Sketcher.Constraint("Horizontal", 25, 2, 28, 2),
    Sketcher.Constraint("Horizontal", 27, 2, 30, 2),
    Sketcher.Constraint("Horizontal", 29, 2, 32, 2),
    Sketcher.Constraint("Equal", 5, 7),
    Sketcher.Constraint("Equal", 9, 11),
    Sketcher.Constraint("Equal", 13, 15),
    Sketcher.Constraint("Equal", 17, 19),
    Sketcher.Constraint("Equal", 21, 23),
    Sketcher.Constraint("Equal", 25, 27),
    Sketcher.Constraint("Equal", 29, 31),
    Sketcher.Constraint("Diameter", 0, Q("4 mm")),
    Sketcher.Constraint("DistanceX", 3, 1, 3, 2, Q("12 mm")),
    Sketcher.Constraint("DistanceY", 2, 2, 2, 1, Q("6 mm")),
    Sketcher.Constraint("DistanceX", 0, 3, 1, 3, Q("108 mm")),
    Sketcher.Constraint("DistanceX", 0, 3, 2, 2, Q("36 mm")),
    Sketcher.Constraint("DistanceY", 2, 2, 0, 3, Q("3 mm")),
    Sketcher.Constraint("DistanceX", 0, 3, 6, 2, Q("9 mm")),
    Sketcher.Constraint("DistanceX", 10, 2, 0, 3, Q("21 mm")),
    Sketcher.Constraint("DistanceX", 14, 2, 10, 2, Q("27 mm")),
    Sketcher.Constraint("DistanceX", 1, 3, 18, 2, Q("36 mm")),
    Sketcher.Constraint("DistanceX", 1, 3, 22, 2, Q("9 mm")),
    Sketcher.Constraint("DistanceX", 26, 2, 1, 3, Q("21 mm")),
    Sketcher.Constraint("DistanceX", 3, 2, 30, 2, Q("12 mm")),
    Sketcher.Constraint("DistanceX", -1, 1, 0, 3, Q("7.472433 mm")),
    Sketcher.Constraint("DistanceY", 0, 3, -1, 1, Q("205.092324 mm")),
])
pocket2 = body.newObject("PartDesign::Pocket", "Pocket001")
pocket2.Profile = sketch3
pocket2.Length = 3

sketch4 = body.newObject("Sketcher::SketchObject", "Sketch003")
sketch4.AttachmentSupport = (doc.getObject("XY_Plane"), [""])
sketch4.MapMode = "FlatFace"
sketch4.AttachmentOffset = App.Placement(App.Vector(0, 0, 3), App.Rotation())
sketch4.addGeometry([
    Part.Circle(App.Vector(-44.5, -187.1, 0), App.Vector(0, 0, 1), 2),
    Part.Circle(App.Vector(-34.5, -197.1, 0), App.Vector(0, 0, 1), 2),
    Part.Circle(App.Vector(157.5, -197.1, 0), App.Vector(0, 0, 1), 2),
    Part.Circle(App.Vector(167.5, -187.1, 0), App.Vector(0, 0, 1), 2),
    Part.Circle(App.Vector(167.5, 52.9, 0), App.Vector(0, 0, 1), 2),
    Part.Circle(App.Vector(157.5, 62.9, 0), App.Vector(0, 0, 1), 2),
    Part.Circle(App.Vector(-34.5, 62.9, 0), App.Vector(0, 0, 1), 2),
    Part.Circle(App.Vector(-44.5, 52.9, 0), App.Vector(0, 0, 1), 2),
    Part.Circle(App.Vector(-44.5, -67.1, 0), App.Vector(0, 0, 1), 2),
    Part.Circle(App.Vector(167.5, -67.1, 0), App.Vector(0, 0, 1), 2),
    Part.Circle(App.Vector(61.5, 62.9, 0), App.Vector(0, 0, 1), 2),
    Part.Circle(App.Vector(61.5, -197.1, 0), App.Vector(0, 0, 1), 2),
    Part.LineSegment(App.Vector(-39.5, 57.9, 0), App.Vector(-39.5, -192.1, 0)),
    Part.LineSegment(App.Vector(-39.5, -192.1, 0), App.Vector(162.5, -192.1, 0)),
    Part.LineSegment(App.Vector(162.5, -192.1, 0), App.Vector(162.5, 57.9, 0)),
    Part.LineSegment(App.Vector(162.5, 57.9, 0), App.Vector(-39.5, 57.9, 0)),
], False)
sketch4.addConstraint([
    Sketcher.Constraint("Coincident", 12, 2, 13, 1),
    Sketcher.Constraint("Coincident", 13, 2, 14, 1),
    Sketcher.Constraint("Coincident", 14, 2, 15, 1),
    Sketcher.Constraint("Coincident", 15, 2, 12, 1),
    Sketcher.Constraint("Vertical", 12),
    Sketcher.Constraint("Horizontal", 13),
    Sketcher.Constraint("Vertical", 14),
    Sketcher.Constraint("Horizontal", 15),
    Sketcher.Constraint("Equal", 0, 1),
    Sketcher.Constraint("Equal", 1, 2),
    Sketcher.Constraint("Equal", 2, 3),
    Sketcher.Constraint("Equal", 3, 4),
    Sketcher.Constraint("Equal", 4, 5),
    Sketcher.Constraint("Equal", 5, 6),
    Sketcher.Constraint("Equal", 6, 7),
    Sketcher.Constraint("Equal", 7, 8),
    Sketcher.Constraint("Equal", 8, 9),
    Sketcher.Constraint("Equal", 9, 10),
    Sketcher.Constraint("Equal", 10, 11),
    Sketcher.Constraint("Horizontal", 1, 3, 2, 3),
    Sketcher.Constraint("Horizontal", 0, 3, 3, 3),
    Sketcher.Constraint("Horizontal", 5, 3, 6, 3),
    Sketcher.Constraint("Horizontal", 4, 3, 7, 3),
    Sketcher.Constraint("Horizontal", 8, 3, 9, 3),
    Sketcher.Constraint("Horizontal", 6, 3, 10, 3),
    Sketcher.Constraint("Horizontal", 2, 3, 11, 3),
    Sketcher.Constraint("Vertical", 3, 3, 4, 3),
    Sketcher.Constraint("Vertical", 2, 3, 5, 3),
    Sketcher.Constraint("Vertical", 1, 3, 6, 3),
    Sketcher.Constraint("Vertical", 0, 3, 7, 3),
    Sketcher.Constraint("Vertical", 7, 3, 8, 3),
    Sketcher.Constraint("Vertical", 4, 3, 9, 3),
    Sketcher.Constraint("Vertical", 10, 3, 11, 3),
    Sketcher.Constraint("Diameter", 0, Q("4 mm")),
    Sketcher.Constraint("DistanceX", 13, 1, 13, 2, Q("202 mm")),
    Sketcher.Constraint("DistanceY", 12, 2, 12, 1, Q("250 mm")),
    Sketcher.Constraint("DistanceX", 0, 3, 1, 3, Q("10 mm")),
    Sketcher.Constraint("DistanceY", 1, 3, 0, 3, Q("10 mm")),
    Sketcher.Constraint("DistanceX", 1, 3, 2, 3, Q("192 mm")),
    Sketcher.Constraint("DistanceX", 2, 3, 3, 3, Q("10 mm")),
    Sketcher.Constraint("DistanceY", 3, 3, 4, 3, Q("240 mm")),
    Sketcher.Constraint("DistanceY", 4, 3, 5, 3, Q("10 mm")),
    Sketcher.Constraint("DistanceY", 0, 3, 8, 3, Q("120 mm")),
    Sketcher.Constraint("DistanceX", 10, 3, 5, 3, Q("96 mm")),
    Sketcher.Constraint("DistanceX", 0, 3, 12, 2, Q("5 mm")),
    Sketcher.Constraint("DistanceY", 12, 2, 0, 3, Q("5 mm")),
    Sketcher.Constraint("DistanceX", 0, 3, -1, 1, Q("44.527567 mm")),
    Sketcher.Constraint("DistanceY", 0, 3, -1, 1, Q("187.092324 mm")),
])
pocket3 = body.newObject("PartDesign::Pocket", "Pocket002")
pocket3.Profile = sketch4
pocket3.Length = 3

doc.recompute()
